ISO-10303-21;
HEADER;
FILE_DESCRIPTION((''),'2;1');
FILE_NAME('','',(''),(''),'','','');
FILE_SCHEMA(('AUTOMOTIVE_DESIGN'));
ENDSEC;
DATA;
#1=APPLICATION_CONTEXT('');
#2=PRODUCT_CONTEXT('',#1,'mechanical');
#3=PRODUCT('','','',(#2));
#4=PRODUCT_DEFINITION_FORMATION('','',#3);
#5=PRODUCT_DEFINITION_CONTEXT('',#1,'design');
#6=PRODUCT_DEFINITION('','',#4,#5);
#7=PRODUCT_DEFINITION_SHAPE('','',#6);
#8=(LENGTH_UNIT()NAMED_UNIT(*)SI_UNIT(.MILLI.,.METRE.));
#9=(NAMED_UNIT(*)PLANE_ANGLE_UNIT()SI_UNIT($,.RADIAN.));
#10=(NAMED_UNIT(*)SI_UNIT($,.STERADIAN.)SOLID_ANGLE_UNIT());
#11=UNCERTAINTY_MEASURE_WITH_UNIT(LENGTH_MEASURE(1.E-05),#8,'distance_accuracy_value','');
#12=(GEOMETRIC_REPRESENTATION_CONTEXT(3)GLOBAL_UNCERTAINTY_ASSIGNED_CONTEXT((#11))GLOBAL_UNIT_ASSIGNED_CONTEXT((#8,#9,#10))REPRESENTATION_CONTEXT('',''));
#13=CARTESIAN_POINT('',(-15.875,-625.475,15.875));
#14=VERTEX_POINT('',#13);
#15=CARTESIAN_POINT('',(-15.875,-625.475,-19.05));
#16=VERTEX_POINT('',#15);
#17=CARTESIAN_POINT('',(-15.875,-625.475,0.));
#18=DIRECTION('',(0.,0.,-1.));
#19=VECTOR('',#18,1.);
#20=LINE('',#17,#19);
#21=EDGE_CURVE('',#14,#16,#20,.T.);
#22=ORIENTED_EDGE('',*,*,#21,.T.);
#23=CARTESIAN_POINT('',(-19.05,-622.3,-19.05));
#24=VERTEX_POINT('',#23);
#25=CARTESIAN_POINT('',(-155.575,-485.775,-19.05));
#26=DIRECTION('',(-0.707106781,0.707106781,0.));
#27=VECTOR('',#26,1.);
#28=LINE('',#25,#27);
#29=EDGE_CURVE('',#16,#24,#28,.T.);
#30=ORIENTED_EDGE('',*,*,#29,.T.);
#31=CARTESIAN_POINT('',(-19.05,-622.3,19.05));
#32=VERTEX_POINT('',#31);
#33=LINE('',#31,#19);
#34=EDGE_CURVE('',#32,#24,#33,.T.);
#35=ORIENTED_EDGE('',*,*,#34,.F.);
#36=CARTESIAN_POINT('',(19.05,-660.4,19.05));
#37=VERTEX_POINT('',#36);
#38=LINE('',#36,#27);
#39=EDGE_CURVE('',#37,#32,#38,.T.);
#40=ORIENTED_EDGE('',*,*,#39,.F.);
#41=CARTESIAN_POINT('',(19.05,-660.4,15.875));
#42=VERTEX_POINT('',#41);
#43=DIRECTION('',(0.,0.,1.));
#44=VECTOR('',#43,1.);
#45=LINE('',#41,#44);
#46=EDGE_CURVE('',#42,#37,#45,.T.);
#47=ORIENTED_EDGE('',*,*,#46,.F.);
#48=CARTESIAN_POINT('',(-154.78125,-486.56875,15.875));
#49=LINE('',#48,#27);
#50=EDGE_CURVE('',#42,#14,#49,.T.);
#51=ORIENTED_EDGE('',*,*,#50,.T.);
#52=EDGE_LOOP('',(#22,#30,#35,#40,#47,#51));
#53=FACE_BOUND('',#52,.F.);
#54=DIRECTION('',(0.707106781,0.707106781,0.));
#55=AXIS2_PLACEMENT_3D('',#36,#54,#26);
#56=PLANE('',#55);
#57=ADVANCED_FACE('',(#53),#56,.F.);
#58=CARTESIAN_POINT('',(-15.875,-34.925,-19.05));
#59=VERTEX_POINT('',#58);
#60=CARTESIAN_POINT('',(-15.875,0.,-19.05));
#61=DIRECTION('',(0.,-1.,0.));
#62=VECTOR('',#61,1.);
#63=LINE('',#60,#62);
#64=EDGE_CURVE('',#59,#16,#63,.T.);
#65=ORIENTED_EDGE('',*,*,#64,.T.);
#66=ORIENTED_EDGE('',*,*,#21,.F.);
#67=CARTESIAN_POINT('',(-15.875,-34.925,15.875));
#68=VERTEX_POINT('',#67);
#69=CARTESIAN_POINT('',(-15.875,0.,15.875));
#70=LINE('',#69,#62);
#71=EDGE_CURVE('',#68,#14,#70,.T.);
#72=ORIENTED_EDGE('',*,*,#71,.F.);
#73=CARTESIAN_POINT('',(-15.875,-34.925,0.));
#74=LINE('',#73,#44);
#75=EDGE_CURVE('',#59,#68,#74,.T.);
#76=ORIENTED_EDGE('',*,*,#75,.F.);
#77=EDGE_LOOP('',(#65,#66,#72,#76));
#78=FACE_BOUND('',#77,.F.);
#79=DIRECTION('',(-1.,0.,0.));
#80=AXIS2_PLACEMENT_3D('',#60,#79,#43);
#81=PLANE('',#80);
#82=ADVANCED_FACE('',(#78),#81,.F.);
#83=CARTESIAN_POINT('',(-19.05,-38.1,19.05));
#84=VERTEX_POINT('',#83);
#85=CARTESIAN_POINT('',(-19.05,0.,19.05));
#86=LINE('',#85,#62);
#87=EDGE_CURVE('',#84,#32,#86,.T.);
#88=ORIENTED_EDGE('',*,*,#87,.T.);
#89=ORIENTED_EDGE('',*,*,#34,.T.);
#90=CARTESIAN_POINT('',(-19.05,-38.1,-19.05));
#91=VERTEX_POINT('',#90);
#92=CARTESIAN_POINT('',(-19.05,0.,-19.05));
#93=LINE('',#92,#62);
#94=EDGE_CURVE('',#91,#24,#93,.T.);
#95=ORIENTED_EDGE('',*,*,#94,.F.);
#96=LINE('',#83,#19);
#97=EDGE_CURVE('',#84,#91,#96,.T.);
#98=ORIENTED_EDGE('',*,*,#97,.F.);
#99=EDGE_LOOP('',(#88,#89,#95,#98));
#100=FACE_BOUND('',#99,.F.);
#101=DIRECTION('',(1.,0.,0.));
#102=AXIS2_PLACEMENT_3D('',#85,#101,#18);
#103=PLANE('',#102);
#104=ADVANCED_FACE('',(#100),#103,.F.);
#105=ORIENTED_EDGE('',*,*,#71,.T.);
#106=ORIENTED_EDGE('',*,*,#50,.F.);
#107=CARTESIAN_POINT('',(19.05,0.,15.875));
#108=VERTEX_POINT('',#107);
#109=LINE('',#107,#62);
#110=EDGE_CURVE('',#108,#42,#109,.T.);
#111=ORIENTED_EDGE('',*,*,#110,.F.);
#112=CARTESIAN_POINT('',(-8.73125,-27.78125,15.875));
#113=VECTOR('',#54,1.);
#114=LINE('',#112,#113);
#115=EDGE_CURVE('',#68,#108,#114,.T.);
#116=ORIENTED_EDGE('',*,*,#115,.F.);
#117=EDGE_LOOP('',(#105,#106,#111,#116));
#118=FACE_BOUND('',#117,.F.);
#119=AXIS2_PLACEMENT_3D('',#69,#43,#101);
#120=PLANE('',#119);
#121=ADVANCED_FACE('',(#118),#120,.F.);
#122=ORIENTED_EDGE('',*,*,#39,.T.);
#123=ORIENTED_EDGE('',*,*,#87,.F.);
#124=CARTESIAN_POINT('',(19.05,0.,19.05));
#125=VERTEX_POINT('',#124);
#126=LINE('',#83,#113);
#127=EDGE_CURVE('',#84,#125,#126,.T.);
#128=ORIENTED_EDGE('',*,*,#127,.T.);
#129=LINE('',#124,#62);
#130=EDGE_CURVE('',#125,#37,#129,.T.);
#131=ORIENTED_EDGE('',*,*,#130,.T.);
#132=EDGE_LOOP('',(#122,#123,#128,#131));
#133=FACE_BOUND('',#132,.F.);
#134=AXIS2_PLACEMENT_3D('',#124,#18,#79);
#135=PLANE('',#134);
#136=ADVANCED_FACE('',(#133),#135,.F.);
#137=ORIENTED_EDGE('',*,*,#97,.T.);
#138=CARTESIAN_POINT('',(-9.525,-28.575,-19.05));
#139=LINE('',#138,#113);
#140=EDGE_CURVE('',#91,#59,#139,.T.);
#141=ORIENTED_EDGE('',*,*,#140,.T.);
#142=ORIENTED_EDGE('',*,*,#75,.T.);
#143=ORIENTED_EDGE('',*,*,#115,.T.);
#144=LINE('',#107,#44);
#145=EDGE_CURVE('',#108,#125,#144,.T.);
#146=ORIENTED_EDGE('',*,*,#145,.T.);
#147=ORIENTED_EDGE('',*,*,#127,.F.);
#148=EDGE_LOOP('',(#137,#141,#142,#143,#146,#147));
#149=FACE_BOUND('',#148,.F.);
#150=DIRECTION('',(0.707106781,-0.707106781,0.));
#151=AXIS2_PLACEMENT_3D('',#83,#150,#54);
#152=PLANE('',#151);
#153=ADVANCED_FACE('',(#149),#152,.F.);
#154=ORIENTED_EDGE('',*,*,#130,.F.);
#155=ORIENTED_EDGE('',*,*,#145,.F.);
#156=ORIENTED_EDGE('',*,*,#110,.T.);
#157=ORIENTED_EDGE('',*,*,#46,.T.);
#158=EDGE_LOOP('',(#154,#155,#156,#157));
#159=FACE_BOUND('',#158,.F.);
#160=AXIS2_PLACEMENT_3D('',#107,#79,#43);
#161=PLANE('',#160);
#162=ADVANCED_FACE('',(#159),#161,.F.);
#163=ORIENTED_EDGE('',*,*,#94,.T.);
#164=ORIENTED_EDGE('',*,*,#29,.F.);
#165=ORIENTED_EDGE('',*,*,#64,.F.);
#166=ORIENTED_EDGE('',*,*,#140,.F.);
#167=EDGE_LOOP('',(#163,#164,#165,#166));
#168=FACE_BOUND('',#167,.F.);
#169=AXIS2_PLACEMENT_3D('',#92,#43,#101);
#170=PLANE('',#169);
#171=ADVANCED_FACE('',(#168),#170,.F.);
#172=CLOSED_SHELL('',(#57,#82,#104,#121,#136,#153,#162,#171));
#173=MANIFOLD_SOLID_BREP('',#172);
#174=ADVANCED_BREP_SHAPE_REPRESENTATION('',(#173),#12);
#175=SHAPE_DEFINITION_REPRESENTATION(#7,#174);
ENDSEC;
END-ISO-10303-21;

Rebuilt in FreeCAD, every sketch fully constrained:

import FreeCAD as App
import Part
import Sketcher
Q = App.Units.Quantity

doc = App.newDocument("Part")
params = doc.addObject("Spreadsheet::Sheet", "Params")
for row, (alias, value) in enumerate([
    ("sketch1_width", "1.5 in"),
    ("sketch1_width2", "0.125 in"),
    ("pad1_length", "26 in"),
    ("sketch2_width", "1.5 in"),
], start=1):
    params.set(f"A{row}", alias)
    params.set(f"B{row}", "=" + value)
    params.setAlias(f"B{row}", alias)

body = doc.addObject("PartDesign::Body", "Body")

# Sketch on XZ plane
sketch1 = body.newObject("Sketcher::SketchObject", "Sketch")
sketch1.AttachmentSupport = (doc.getObject("XZ_Plane"), [""])
sketch1.MapMode = "FlatFace"
sketch1.addGeometry(Part.LineSegment(App.Vector(19.05, 15.875, 0), App.Vector(19.05, 19.05, 0)), False)
sketch1.addGeometry(Part.LineSegment(App.Vector(19.05, 19.05, 0), App.Vector(-19.05, 19.05, 0)), False)
sketch1.addGeometry(Part.LineSegment(App.Vector(-19.05, 19.05, 0), App.Vector(-19.05, -19.05, 0)), False)
sketch1.addGeometry(Part.LineSegment(App.Vector(-19.05, -19.05, 0), App.Vector(-15.875, -19.05, 0)), False)
sketch1.addGeometry(Part.LineSegment(App.Vector(-15.875, -19.05, 0), App.Vector(-15.875, 15.875, 0)), False)
sketch1.addGeometry(Part.LineSegment(App.Vector(-15.875, 15.875, 0), App.Vector(19.05, 15.875, 0)), False)
sketch1.addConstraint(Sketcher.Constraint("Coincident", 0, 2, 1, 1))
sketch1.addConstraint(Sketcher.Constraint("Coincident", 1, 2, 2, 1))
sketch1.addConstraint(Sketcher.Constraint("Coincident", 2, 2, 3, 1))
sketch1.addConstraint(Sketcher.Constraint("Coincident", 3, 2, 4, 1))
sketch1.addConstraint(Sketcher.Constraint("Coincident", 4, 2, 5, 1))
sketch1.addConstraint(Sketcher.Constraint("Coincident", 5, 2, 0, 1))
sketch1.addConstraint(Sketcher.Constraint("Vertical", 0))
sketch1.addConstraint(Sketcher.Constraint("Horizontal", 1))
sketch1.addConstraint(Sketcher.Constraint("Vertical", 2))
sketch1.addConstraint(Sketcher.Constraint("Horizontal", 3))
sketch1.addConstraint(Sketcher.Constraint("Vertical", 4))
sketch1.addConstraint(Sketcher.Constraint("Horizontal", 5))
sketch1.addConstraint(Sketcher.Constraint("Symmetric", 0, 2, 2, 2, -1, 1))
sketch1.addConstraint(Sketcher.Constraint("Equal", 3, 0))
sketch1.addConstraint(Sketcher.Constraint("Equal", 1, 2))
sketch1.addConstraint(Sketcher.Constraint("DistanceX", 1, 2, 1, 1, Q("1.5 in")))
sketch1.addConstraint(Sketcher.Constraint("DistanceX", 3, 1, 3, 2, Q("0.125 in")))
sketch1.setExpression("Constraints[15]", "Params.sketch1_width")
sketch1.setExpression("Constraints[16]", "Params.sketch1_width2")
pad1 = body.newObject("PartDesign::Pad", "Pad")
pad1.Profile = sketch1
pad1.setExpression("Length", "Params.pad1_length")

# Sketch on XY plane
sketch2 = body.newObject("Sketcher::SketchObject", "Sketch001")
sketch2.AttachmentSupport = (doc.getObject("XY_Plane"), [""])
sketch2.MapMode = "FlatFace"
sketch2.AttachmentOffset = App.Placement(App.Vector(0, 0, 0.75 * 25.4), App.Rotation())
sketch2.addGeometry(Part.LineSegment(App.Vector(-19.05, -660.4, 0), App.Vector(19.05, -660.4, 0)), False)
sketch2.addGeometry(Part.LineSegment(App.Vector(19.05, -660.4, 0), App.Vector(-19.05, -622.3, 0)), False)
sketch2.addGeometry(Part.LineSegment(App.Vector(-19.05, -622.3, 0), App.Vector(-19.05, -660.4, 0)), False)
sketch2.addGeometry(Part.LineSegment(App.Vector(-19.05, -38.1, 0), App.Vector(19.05, 0, 0)), False)
sketch2.addGeometry(Part.LineSegment(App.Vector(19.05, 0, 0), App.Vector(-19.05, 0, 0)), False)
sketch2.addGeometry(Part.LineSegment(App.Vector(-19.05, 0, 0), App.Vector(-19.05, -38.1, 0)), False)
sketch2.addConstraint(Sketcher.Constraint("Coincident", 0, 2, 1, 1))
sketch2.addConstraint(Sketcher.Constraint("Coincident", 1, 2, 2, 1))
sketch2.addConstraint(Sketcher.Constraint("Coincident", 2, 2, 0, 1))
sketch2.addConstraint(Sketcher.Constraint("Coincident", 3, 2, 4, 1))
sketch2.addConstraint(Sketcher.Constraint("Coincident", 4, 2, 5, 1))
sketch2.addConstraint(Sketcher.Constraint("Coincident", 5, 2, 3, 1))
sketch2.addConstraint(Sketcher.Constraint("Horizontal", 0))
sketch2.addConstraint(Sketcher.Constraint("Vertical", 2))
sketch2.addConstraint(Sketcher.Constraint("Horizontal", 4))
sketch2.addConstraint(Sketcher.Constraint("Vertical", 5))
sketch2.addConstraint(Sketcher.Constraint("Symmetric", 3, 2, 4, 2, -1, 1))
sketch2.addConstraint(Sketcher.Constraint("Perpendicular", 1, 3))
sketch2.addConstraint(Sketcher.Constraint("Vertical", 0, 2, 3, 2))
sketch2.addConstraint(Sketcher.Constraint("Vertical", 2, 2, 4, 2))
sketch2.addConstraint(Sketcher.Constraint("Equal", 4, 2))
sketch2.addConstraint(Sketcher.Constraint("DistanceX", 0, 1, 0, 2, Q("1.5 in")))
sketch2.addConstraint(Sketcher.Constraint("DistanceY", 0, 2, -1, 1, Q("26 in")))
sketch2.setExpression("Constraints[15]", "Params.sketch2_width")
pocket1 = body.newObject("PartDesign::Pocket", "Pocket")
pocket1.Profile = sketch2
pocket1.Type = "ThroughAll"

doc.recompute()
